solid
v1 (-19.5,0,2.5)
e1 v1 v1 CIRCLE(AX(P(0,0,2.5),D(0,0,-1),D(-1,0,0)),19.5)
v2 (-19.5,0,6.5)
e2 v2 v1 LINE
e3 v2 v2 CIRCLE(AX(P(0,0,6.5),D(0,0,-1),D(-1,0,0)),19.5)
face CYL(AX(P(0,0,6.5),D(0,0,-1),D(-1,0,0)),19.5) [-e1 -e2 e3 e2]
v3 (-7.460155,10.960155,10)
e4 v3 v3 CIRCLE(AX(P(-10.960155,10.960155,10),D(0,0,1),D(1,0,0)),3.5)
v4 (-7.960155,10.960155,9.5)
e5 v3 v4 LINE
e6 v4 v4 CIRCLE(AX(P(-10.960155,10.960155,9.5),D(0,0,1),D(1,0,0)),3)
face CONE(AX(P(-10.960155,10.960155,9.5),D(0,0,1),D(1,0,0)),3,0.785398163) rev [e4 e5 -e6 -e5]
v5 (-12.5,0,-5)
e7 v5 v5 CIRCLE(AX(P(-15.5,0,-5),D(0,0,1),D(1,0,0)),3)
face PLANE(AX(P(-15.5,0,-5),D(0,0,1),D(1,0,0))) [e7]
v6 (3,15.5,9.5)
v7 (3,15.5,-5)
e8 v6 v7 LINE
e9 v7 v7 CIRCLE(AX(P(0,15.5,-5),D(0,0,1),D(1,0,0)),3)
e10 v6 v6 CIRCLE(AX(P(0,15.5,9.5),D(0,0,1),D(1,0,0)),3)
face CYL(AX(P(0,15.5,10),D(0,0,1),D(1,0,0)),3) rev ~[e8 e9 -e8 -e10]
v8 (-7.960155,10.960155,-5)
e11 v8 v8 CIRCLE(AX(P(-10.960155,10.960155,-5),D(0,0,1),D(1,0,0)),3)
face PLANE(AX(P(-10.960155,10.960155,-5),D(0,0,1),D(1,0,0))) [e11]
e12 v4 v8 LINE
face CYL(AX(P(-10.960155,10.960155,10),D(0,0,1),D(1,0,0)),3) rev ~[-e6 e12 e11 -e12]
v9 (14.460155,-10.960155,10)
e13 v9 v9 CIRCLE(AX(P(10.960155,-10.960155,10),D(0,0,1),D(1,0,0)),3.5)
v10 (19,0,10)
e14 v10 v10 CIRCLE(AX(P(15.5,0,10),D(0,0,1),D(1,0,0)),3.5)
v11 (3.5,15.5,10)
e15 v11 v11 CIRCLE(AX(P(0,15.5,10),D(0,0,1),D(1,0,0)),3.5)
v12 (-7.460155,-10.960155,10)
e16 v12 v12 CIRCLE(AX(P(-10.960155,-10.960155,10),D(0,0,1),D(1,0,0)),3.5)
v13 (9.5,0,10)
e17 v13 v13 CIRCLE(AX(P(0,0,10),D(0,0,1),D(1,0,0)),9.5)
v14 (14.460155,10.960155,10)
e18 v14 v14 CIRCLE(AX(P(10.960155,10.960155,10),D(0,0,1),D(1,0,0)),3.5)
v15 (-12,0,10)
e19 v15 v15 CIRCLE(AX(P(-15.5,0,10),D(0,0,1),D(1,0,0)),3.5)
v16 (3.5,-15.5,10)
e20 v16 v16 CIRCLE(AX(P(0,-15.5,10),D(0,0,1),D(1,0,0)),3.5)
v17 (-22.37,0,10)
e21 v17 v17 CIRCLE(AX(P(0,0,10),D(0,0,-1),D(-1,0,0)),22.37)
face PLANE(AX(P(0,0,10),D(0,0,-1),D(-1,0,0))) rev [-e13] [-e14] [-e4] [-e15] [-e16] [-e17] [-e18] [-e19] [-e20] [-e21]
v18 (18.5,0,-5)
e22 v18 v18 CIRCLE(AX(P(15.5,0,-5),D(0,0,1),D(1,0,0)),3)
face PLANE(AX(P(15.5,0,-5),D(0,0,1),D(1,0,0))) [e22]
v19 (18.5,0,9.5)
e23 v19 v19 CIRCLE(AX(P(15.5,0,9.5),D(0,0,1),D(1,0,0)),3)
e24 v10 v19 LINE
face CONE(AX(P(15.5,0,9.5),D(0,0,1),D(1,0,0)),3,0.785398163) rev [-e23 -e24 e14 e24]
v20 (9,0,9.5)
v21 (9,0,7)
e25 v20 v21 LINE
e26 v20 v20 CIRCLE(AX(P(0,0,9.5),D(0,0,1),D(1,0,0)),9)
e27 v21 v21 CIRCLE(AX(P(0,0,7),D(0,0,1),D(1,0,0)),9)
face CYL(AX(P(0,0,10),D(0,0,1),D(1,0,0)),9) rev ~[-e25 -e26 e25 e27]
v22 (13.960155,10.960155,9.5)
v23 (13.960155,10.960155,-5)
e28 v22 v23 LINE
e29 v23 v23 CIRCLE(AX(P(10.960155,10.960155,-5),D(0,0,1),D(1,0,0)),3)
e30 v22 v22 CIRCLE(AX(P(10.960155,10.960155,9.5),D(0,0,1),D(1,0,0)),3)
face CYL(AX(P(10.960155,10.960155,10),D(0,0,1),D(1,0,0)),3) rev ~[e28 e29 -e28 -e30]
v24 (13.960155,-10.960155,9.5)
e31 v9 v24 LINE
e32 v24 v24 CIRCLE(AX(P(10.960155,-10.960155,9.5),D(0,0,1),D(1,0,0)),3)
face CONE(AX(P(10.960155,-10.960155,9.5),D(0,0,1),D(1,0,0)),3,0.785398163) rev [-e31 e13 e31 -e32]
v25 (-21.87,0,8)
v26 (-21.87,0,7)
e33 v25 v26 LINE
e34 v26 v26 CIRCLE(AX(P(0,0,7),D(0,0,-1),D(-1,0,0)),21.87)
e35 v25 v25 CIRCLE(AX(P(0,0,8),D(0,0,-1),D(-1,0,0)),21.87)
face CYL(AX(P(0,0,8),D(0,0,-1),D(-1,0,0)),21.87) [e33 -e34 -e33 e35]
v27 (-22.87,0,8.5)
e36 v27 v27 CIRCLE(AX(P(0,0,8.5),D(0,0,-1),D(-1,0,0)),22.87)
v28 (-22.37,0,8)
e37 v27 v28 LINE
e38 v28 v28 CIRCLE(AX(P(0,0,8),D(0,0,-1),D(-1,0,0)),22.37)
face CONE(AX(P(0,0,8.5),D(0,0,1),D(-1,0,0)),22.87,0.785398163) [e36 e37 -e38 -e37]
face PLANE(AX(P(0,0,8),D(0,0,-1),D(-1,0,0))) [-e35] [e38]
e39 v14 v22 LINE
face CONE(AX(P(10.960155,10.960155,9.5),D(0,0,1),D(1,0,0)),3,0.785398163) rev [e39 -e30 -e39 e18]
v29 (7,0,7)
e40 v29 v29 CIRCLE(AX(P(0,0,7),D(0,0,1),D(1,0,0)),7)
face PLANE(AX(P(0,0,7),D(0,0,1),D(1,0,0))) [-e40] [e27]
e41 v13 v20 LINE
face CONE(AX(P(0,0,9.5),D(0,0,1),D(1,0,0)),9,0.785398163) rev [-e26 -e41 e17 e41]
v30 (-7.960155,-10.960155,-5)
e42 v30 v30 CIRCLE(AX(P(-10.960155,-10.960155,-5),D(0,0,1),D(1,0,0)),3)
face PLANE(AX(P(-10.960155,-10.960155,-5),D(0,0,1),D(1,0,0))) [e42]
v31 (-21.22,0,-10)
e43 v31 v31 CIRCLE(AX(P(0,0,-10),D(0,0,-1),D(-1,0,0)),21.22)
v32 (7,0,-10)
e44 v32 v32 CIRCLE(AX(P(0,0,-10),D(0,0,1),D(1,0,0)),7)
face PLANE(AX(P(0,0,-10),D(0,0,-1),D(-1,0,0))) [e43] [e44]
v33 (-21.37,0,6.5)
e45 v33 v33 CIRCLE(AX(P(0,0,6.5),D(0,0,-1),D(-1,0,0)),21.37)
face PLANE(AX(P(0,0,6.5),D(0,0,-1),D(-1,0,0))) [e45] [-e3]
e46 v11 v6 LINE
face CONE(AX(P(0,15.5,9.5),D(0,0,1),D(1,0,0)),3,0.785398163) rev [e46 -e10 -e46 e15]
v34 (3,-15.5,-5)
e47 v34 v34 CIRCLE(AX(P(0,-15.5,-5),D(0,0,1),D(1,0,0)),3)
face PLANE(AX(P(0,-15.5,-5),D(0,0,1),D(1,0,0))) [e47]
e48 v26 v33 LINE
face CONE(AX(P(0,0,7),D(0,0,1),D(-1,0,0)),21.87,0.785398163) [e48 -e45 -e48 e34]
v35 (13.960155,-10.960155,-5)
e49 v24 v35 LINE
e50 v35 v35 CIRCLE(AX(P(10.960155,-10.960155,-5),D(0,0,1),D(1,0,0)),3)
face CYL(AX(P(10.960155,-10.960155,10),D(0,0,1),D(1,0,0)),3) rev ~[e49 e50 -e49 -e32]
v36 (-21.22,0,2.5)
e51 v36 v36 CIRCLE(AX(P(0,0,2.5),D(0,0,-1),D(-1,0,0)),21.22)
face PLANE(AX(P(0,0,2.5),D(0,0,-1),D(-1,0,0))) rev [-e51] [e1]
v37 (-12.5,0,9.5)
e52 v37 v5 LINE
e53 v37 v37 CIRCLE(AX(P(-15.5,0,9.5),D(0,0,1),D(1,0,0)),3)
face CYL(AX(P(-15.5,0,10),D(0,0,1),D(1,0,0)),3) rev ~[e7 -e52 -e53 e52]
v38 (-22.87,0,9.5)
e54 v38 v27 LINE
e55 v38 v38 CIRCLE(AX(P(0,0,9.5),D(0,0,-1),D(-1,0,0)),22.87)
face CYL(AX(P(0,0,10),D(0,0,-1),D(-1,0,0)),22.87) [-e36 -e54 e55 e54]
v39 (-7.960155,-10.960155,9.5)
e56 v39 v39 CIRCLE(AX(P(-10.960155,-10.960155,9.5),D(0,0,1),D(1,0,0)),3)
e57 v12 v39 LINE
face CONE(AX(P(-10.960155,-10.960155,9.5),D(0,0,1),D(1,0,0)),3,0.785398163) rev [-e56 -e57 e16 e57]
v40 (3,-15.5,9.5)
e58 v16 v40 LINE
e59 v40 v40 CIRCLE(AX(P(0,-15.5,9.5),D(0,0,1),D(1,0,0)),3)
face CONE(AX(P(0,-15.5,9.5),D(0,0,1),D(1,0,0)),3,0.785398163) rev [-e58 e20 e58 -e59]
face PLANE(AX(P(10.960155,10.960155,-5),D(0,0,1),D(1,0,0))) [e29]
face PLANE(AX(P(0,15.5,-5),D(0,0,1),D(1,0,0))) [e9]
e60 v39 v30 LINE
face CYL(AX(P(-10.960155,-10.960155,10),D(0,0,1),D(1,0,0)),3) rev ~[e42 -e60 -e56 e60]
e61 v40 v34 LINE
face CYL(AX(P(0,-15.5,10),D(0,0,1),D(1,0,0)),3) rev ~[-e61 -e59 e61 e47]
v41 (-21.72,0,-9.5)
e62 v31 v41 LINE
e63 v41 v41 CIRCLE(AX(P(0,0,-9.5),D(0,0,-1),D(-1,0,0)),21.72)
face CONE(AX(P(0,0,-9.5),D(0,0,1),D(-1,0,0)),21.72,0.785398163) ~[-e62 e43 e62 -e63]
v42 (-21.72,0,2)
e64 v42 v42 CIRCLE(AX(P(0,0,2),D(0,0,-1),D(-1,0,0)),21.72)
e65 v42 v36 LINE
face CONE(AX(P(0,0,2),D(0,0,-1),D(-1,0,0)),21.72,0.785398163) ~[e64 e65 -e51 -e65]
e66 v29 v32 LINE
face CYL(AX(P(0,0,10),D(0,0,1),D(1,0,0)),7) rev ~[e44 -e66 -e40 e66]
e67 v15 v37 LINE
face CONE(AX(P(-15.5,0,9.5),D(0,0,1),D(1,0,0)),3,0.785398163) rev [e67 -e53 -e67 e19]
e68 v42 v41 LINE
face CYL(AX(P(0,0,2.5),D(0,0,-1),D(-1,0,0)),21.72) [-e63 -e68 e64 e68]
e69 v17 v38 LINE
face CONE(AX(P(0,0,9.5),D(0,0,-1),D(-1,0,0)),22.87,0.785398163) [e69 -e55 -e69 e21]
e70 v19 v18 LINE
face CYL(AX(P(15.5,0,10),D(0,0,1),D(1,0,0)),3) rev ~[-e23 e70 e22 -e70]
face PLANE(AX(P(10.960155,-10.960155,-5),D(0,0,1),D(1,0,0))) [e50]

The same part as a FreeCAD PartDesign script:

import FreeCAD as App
import Part
import Sketcher

V = App.Vector


def edges_at(feature, points):
    """Names of the edges that pass closest to the given points."""
    edges = feature.Shape.Edges
    near = lambda p: min(range(len(edges)), key=lambda i: edges[i].distToShape(Part.Vertex(*p))[0])
    return sorted({f"Edge{near(p) + 1}" for p in points})


def add_polygon(sketch, points):
    """Adds a closed chain of lines whose ends are joined by coincident constraints."""
    first, n = sketch.GeometryCount, len(points)
    for a, b in zip(points, points[1:] + points[:1]):
        sketch.addGeometry(Part.LineSegment(App.Vector(*a, 0), App.Vector(*b, 0)), False)
    for i in range(n):
        sketch.addConstraint(Sketcher.Constraint("Coincident", first + i, 2, first + (i + 1) % n, 1))

doc = App.newDocument("Part")
params = doc.addObject("Spreadsheet::Sheet", "Params")
for row, (alias, value) in enumerate([
    ("sketch1_width", "1 mm"),
    ("sketch1_height", "20 mm"),
    ("sketch1_height2", "2 mm"),
    ("sketch1_height3", "4 mm"),
    ("sketch1_height4", "1.5 mm"),
    ("revolution_angle", "360 deg"),
    ("sketch2_diameter", "14 mm"),
    ("sketch3_diameter", "6 mm"),
    ("pocket2_length", "15 mm"),
    ("sketch4_diameter", "18 mm"),
    ("sketch4_diameter2", "14 mm"),
    ("pocket3_length", "3 mm"),
    ("chamfer_size", "0.5 mm"),
    ("chamfer2_size", "0.5 mm"),
], start=1):
    params.set(f"A{row}", alias)
    params.set(f"B{row}", "=" + value)
    params.setAlias(f"B{row}", alias)

body = doc.addObject("PartDesign::Body", "Body")

# Sketch on XZ plane
sketch1 = body.newObject("Sketcher::SketchObject", "Sketch")
sketch1.AttachmentSupport = (doc.getObject("XZ_Plane"), [""])
sketch1.MapMode = "FlatFace"
add_polygon(sketch1, [(0, -10), (0, 10), (-22.9, 10), (-22.9, 8), (-21.9, 8), (-21.9, 6.5), (-19.5, 6.5), (-19.5, 2.5), (-21.7, 2.5), (-21.7, -10)])  # lines 0-9
sketch1.addConstraint(Sketcher.Constraint("Vertical", 0))
sketch1.addConstraint(Sketcher.Constraint("Horizontal", 1))
sketch1.addConstraint(Sketcher.Constraint("Vertical", 2))
sketch1.addConstraint(Sketcher.Constraint("Horizontal", 3))
sketch1.addConstraint(Sketcher.Constraint("Vertical", 4))
sketch1.addConstraint(Sketcher.Constraint("Horizontal", 5))
sketch1.addConstraint(Sketcher.Constraint("Vertical", 6))
sketch1.addConstraint(Sketcher.Constraint("Horizontal", 7))
sketch1.addConstraint(Sketcher.Constraint("Vertical", 8))
sketch1.addConstraint(Sketcher.Constraint("Horizontal", 9))
sketch1.addConstraint(Sketcher.Constraint("Symmetric", 0, 2, 9, 2, -1, 1))
sketch1.addConstraint(Sketcher.Constraint("DistanceX", 3, 1, 3, 2, 1.0))
sketch1.addConstraint(Sketcher.Constraint("DistanceY", 0, 1, 0, 2, 20.0))
sketch1.addConstraint(Sketcher.Constraint("DistanceY", 2, 2, 2, 1, 2.0))
sketch1.addConstraint(Sketcher.Constraint("DistanceY", 6, 2, 6, 1, 4.0))
sketch1.addConstraint(Sketcher.Constraint("DistanceY", 4, 2, 4, 1, 1.5))
sketch1.addConstraint(Sketcher.Constraint("DistanceX", 1, 2, 1, 1, 22.87))
sketch1.addConstraint(Sketcher.Constraint("DistanceX", 5, 1, 5, 2, 2.37))
sketch1.addConstraint(Sketcher.Constraint("DistanceX", 7, 2, 7, 1, 2.22))
sketch1.setExpression("Constraints[21]", "Params.sketch1_width")
sketch1.setExpression("Constraints[22]", "Params.sketch1_height")
sketch1.setExpression("Constraints[23]", "Params.sketch1_height2")
sketch1.setExpression("Constraints[24]", "Params.sketch1_height3")
sketch1.setExpression("Constraints[25]", "Params.sketch1_height4")
revolution = body.newObject("PartDesign::Revolution", "Revolution")
revolution.Profile = sketch1
revolution.ReferenceAxis = (sketch1, ["V_Axis"])
revolution.setExpression("Angle", "Params.revolution_angle")

# Sketch on XY plane
sketch2 = body.newObject("Sketcher::SketchObject", "Sketch001")
sketch2.AttachmentSupport = (doc.getObject("XY_Plane"), [""])
sketch2.MapMode = "FlatFace"
sketch2.AttachmentOffset = App.Placement(V(0, 0, 10), App.Rotation())
sketch2.addGeometry(Part.Circle(V(0, 0, 0), V(0, 0, 1), 7), False)
sketch2.addConstraint(Sketcher.Constraint("Coincident", 0, 3, -1, 1))
sketch2.addConstraint(Sketcher.Constraint("Diameter", 0, 14.0))
sketch2.setExpression("Constraints[1]", "Params.sketch2_diameter")
pocket1 = body.newObject("PartDesign::Pocket", "Pocket")
pocket1.Profile = sketch2
pocket1.Type = "ThroughAll"

# Sketch on XY plane
sketch3 = body.newObject("Sketcher::SketchObject", "Sketch002")
sketch3.AttachmentSupport = (doc.getObject("XY_Plane"), [""])
sketch3.MapMode = "FlatFace"
sketch3.AttachmentOffset = App.Placement(V(0, 0, 10), App.Rotation())
sketch3.addGeometry(Part.Circle(V(-11, 11, 0), V(0, 0, 1), 3), False)
sketch3.addGeometry(Part.Circle(V(11, 11, 0), V(0, 0, 1), 3), False)
sketch3.addGeometry(Part.Circle(V(15.5, 0, 0), V(0, 0, 1), 3), False)
sketch3.addGeometry(Part.Circle(V(11, -11, 0), V(0, 0, 1), 3), False)
sketch3.addGeometry(Part.Circle(V(0, -15.5, 0), V(0, 0, 1), 3), False)
sketch3.addGeometry(Part.Circle(V(-11, -11, 0), V(0, 0, 1), 3), False)
sketch3.addGeometry(Part.Circle(V(-15.5, 0, 0), V(0, 0, 1), 3), False)
sketch3.addGeometry(Part.Circle(V(0, 15.5, 0), V(0, 0, 1), 3), False)
sketch3.addConstraint(Sketcher.Constraint("Equal", 0, 1))
sketch3.addConstraint(Sketcher.Constraint("Equal", 1, 2))
sketch3.addConstraint(Sketcher.Constraint("Equal", 2, 3))
sketch3.addConstraint(Sketcher.Constraint("Equal", 3, 4))
sketch3.addConstraint(Sketcher.Constraint("Equal", 4, 5))
sketch3.addConstraint(Sketcher.Constraint("Equal", 5, 6))
sketch3.addConstraint(Sketcher.Constraint("Equal", 6, 7))
sketch3.addConstraint(Sketcher.Constraint("Symmetric", 0, 3, 3, 3, -1, 1))
sketch3.addConstraint(Sketcher.Constraint("Symmetric", 1, 3, 5, 3, -1, 1))
sketch3.addConstraint(Sketcher.Constraint("Symmetric", 2, 3, 6, 3, -1, 1))
sketch3.addConstraint(Sketcher.Constraint("Symmetric", 4, 3, 7, 3, -1, 1))
sketch3.addConstraint(Sketcher.Constraint("Symmetric", 0, 3, 1, 3, -2))
sketch3.addConstraint(Sketcher.Constraint("PointOnObject", 2, 3, -1))
sketch3.addConstraint(Sketcher.Constraint("PointOnObject", 4, 3, -2))
sketch3.addConstraint(Sketcher.Constraint("Diameter", 0, 6.0))
sketch3.addConstraint(Sketcher.Constraint("DistanceX", -1, 1, 2, 3, 15.5))
sketch3.addConstraint(Sketcher.Constraint("DistanceY", 4, 3, -1, 1, 15.5))
sketch3.addConstraint(Sketcher.Constraint("DistanceX", 0, 3, 1, 3, 21.92031))
sketch3.addConstraint(Sketcher.Constraint("DistanceY", 3, 3, 1, 3, 21.92031))
sketch3.setExpression("Constraints[14]", "Params.sketch3_diameter")
pocket2 = body.newObject("PartDesign::Pocket", "Pocket001")
pocket2.Profile = sketch3
pocket2.setExpression("Length", "Params.pocket2_length")

# Sketch on XY plane
sketch4 = body.newObject("Sketcher::SketchObject", "Sketch003")
sketch4.AttachmentSupport = (doc.getObject("XY_Plane"), [""])
sketch4.MapMode = "FlatFace"
sketch4.AttachmentOffset = App.Placement(V(0, 0, 10), App.Rotation())
sketch4.addGeometry(Part.Circle(V(0, 0, 0), V(0, 0, 1), 9), False)
sketch4.addGeometry(Part.Circle(V(0, 0, 0), V(0, 0, 1), 7), False)
sketch4.addConstraint(Sketcher.Constraint("Coincident", 0, 3, -1, 1))
sketch4.addConstraint(Sketcher.Constraint("Coincident", 1, 3, -1, 1))
sketch4.addConstraint(Sketcher.Constraint("Diameter", 0, 18.0))
sketch4.addConstraint(Sketcher.Constraint("Diameter", 1, 14.0))
sketch4.setExpression("Constraints[2]", "Params.sketch4_diameter")
sketch4.setExpression("Constraints[3]", "Params.sketch4_diameter2")
pocket3 = body.newObject("PartDesign::Pocket", "Pocket002")
pocket3.Profile = sketch4
pocket3.setExpression("Length", "Params.pocket3_length")
doc.recompute()

chamfer = body.newObject("PartDesign::Chamfer", "Chamfer")
chamfer.Base = (pocket3, edges_at(pocket3, [
    (22.87, 0, 10),
    (-13.96, -10.96, 10),
    (-3, -15.5, 10),
    (7.96, -10.96, 10),
    (-18.5, 0, 10),
    (-13.96, 10.96, 10),
    (-9, 0, 10),
    (12.5, 0, 10),
    (-3, 15.5, 10),
    (7.96, 10.96, 10),
]))
chamfer.setExpression("Size", "Params.chamfer_size")
doc.recompute()

chamfer2 = body.newObject("PartDesign::Chamfer", "Chamfer001")
chamfer2.Base = (chamfer, edges_at(chamfer, [
    (22.87, 0, 8),
    (21.87, 0, 6.5),
    (21.72, 0, 2.5),
    (21.72, 0, -10),
]))
chamfer2.setExpression("Size", "Params.chamfer2_size")

doc.recompute()
